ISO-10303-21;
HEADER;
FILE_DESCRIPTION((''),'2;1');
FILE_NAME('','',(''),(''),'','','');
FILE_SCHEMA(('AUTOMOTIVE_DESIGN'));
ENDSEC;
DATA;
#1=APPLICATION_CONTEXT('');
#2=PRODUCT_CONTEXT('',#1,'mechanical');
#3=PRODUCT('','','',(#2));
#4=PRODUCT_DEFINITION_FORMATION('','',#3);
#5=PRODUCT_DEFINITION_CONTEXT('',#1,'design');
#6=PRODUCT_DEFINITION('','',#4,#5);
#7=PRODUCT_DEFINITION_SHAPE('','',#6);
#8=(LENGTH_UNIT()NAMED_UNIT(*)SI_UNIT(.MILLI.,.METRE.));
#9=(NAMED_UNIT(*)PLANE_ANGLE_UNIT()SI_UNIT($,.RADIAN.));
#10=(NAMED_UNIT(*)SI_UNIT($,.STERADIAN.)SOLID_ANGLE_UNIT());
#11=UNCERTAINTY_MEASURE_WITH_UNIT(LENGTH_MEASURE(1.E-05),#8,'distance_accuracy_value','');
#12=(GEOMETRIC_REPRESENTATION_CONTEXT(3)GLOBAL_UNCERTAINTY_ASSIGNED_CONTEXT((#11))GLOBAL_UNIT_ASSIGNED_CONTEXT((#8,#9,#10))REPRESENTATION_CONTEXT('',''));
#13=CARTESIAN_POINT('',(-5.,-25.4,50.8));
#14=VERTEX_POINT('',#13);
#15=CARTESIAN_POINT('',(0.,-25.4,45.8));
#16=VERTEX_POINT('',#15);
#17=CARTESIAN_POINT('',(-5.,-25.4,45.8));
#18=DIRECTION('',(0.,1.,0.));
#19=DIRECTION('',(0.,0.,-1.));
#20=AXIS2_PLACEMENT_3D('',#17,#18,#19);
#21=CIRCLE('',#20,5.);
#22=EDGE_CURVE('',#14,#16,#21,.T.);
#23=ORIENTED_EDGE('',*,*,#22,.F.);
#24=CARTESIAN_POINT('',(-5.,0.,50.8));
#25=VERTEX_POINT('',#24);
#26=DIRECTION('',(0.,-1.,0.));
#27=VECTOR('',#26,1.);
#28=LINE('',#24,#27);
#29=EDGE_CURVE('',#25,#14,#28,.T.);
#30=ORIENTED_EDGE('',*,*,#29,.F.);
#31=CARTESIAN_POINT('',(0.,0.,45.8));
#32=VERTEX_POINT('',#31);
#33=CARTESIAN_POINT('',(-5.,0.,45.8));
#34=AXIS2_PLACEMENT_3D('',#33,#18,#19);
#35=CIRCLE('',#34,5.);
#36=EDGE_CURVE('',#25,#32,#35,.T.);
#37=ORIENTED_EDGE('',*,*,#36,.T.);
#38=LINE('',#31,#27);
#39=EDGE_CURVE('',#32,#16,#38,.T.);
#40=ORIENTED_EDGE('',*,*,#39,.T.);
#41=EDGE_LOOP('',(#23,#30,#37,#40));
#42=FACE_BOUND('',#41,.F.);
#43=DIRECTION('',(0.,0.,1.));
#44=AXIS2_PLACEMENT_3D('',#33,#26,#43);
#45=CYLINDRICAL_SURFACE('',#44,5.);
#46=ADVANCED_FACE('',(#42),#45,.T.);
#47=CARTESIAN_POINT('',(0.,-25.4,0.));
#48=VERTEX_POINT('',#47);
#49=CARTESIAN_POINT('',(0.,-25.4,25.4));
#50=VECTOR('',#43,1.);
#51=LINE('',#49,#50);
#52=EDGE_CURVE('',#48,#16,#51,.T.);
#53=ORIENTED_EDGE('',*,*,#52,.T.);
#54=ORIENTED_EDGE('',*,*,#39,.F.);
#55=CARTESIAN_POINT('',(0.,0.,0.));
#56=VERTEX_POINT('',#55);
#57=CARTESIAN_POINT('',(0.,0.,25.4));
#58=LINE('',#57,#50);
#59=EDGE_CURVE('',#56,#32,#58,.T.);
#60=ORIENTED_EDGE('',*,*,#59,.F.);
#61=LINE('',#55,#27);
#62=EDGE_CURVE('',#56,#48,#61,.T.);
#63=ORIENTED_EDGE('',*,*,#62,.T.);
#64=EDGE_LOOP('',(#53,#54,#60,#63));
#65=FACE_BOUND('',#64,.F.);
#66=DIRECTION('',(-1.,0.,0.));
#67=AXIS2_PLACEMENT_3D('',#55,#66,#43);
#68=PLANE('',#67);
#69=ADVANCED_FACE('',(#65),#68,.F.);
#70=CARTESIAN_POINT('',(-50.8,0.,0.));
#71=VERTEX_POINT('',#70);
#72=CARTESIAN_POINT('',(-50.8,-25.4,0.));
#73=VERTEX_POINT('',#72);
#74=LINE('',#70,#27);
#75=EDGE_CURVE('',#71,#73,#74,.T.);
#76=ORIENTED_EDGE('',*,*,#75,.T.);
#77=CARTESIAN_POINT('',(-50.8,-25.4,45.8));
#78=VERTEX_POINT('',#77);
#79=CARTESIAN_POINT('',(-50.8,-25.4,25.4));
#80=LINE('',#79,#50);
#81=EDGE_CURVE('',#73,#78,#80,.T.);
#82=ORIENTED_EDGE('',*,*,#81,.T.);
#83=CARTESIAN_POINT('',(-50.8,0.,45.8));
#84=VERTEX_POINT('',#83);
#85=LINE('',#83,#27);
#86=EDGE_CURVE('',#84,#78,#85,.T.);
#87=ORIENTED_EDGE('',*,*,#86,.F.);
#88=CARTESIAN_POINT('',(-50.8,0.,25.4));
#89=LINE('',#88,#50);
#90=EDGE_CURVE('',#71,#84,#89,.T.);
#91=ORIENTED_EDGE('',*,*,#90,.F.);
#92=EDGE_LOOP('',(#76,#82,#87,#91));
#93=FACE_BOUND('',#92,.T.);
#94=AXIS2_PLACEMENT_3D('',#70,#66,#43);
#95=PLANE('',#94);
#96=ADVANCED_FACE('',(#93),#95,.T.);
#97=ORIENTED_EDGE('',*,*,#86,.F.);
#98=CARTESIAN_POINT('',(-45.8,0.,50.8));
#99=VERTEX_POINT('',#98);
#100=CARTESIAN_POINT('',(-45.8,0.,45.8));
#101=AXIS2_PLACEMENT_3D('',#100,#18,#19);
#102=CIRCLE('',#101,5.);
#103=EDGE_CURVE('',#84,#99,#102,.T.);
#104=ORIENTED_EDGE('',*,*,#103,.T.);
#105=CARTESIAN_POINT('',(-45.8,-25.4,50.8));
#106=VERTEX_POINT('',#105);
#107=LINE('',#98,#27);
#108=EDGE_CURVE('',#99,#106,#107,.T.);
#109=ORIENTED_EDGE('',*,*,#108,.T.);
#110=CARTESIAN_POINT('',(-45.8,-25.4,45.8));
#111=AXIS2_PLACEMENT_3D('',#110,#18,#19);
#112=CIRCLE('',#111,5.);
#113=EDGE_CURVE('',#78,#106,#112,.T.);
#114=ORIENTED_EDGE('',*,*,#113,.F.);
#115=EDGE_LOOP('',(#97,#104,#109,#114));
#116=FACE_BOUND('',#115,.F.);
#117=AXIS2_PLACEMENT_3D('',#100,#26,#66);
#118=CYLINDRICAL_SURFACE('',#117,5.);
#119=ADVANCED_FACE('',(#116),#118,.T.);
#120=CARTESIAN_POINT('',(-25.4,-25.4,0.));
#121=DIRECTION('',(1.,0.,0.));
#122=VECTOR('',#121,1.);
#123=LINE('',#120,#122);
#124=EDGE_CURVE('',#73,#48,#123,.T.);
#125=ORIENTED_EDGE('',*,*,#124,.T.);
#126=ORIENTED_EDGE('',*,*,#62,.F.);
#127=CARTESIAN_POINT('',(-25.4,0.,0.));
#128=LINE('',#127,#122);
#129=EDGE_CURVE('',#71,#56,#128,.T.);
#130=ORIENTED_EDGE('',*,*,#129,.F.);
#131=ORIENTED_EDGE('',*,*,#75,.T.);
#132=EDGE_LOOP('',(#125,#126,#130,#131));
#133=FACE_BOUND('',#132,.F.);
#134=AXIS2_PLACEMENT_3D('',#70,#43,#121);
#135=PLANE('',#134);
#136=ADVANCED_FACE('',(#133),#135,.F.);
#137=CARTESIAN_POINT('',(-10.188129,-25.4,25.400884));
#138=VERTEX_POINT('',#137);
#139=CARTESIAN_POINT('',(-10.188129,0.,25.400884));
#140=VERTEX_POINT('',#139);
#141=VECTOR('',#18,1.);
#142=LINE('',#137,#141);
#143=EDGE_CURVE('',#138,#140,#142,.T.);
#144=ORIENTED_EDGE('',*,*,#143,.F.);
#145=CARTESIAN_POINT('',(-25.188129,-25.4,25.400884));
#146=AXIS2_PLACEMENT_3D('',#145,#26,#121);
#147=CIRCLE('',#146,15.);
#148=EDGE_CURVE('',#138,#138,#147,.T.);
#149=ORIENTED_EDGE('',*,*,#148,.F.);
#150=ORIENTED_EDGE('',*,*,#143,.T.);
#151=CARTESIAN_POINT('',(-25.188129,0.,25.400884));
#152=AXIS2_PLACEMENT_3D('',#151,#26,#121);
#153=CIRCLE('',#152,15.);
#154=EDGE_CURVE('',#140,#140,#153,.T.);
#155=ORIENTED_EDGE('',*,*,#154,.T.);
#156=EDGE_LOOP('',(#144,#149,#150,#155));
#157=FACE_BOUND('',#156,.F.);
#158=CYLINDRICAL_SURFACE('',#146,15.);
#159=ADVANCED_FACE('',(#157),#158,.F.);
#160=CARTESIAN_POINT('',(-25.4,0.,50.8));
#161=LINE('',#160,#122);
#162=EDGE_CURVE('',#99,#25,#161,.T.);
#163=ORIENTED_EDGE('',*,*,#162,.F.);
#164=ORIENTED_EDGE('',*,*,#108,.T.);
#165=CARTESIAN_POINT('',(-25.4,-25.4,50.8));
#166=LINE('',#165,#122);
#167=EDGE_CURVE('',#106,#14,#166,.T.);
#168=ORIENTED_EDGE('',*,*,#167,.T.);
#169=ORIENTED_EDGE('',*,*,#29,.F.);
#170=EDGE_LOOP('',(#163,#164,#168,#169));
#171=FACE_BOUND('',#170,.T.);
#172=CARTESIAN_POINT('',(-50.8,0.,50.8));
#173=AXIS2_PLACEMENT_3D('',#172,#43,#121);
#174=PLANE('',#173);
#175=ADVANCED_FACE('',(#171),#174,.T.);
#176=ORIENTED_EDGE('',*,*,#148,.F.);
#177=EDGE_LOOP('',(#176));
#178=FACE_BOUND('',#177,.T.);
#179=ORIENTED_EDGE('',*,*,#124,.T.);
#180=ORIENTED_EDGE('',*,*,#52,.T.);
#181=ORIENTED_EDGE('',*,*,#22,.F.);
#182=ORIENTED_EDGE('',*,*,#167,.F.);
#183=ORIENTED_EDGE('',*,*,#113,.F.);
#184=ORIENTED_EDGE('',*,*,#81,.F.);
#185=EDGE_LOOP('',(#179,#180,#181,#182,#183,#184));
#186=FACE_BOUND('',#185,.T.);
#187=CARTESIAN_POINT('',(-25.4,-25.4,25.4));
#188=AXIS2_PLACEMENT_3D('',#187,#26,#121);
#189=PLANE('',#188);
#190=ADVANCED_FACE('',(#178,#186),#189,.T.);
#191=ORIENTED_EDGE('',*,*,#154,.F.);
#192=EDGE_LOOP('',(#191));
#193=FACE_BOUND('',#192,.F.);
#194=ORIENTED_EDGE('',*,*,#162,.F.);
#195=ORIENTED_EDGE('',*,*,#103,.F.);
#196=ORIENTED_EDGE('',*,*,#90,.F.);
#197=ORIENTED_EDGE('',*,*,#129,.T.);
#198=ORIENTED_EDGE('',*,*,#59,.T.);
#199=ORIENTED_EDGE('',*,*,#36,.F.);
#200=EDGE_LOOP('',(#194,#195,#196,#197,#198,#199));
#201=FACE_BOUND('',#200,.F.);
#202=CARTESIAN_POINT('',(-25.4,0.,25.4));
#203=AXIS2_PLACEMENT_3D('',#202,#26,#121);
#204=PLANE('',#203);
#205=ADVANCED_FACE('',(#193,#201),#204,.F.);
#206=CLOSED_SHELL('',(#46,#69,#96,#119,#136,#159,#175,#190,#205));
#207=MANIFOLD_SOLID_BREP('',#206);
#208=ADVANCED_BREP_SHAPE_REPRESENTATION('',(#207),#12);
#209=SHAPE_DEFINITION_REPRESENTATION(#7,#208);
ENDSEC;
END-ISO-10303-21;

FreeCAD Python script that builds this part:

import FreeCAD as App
import Part
import Sketcher
from FreeCAD import Vector


def edges_at(feature, points):
    """Names of the edges that pass closest to the given points."""
    edges = feature.Shape.Edges
    near = lambda p: min(range(len(edges)), key=lambda i: edges[i].distToShape(Part.Vertex(*p))[0])
    return sorted({f"Edge{near(p) + 1}" for p in points})

doc = App.newDocument("Part")
params = doc.addObject("Spreadsheet::Sheet", "Params")
for row, (alias, value) in enumerate([
    ("sketch1_width", "50.8 mm"),
    ("pad1_length", "25.4 mm"),
    ("fillet_radius", "5 mm"),
    ("fillet2_radius", "5 mm"),
    ("sketch2_diameter", "30 mm"),
], start=1):
    params.set(f"A{row}", alias)
    params.set(f"B{row}", "=" + value)
    params.setAlias(f"B{row}", alias)

body = doc.addObject("PartDesign::Body", "Body")

# Sketch on XZ plane
sketch1 = body.newObject("Sketcher::SketchObject", "Sketch")
sketch1.AttachmentSupport = (doc.getObject("XZ_Plane"), [""])
sketch1.MapMode = "FlatFace"
sketch1.addGeometry([
    Part.LineSegment(Vector(-50.8, 50.8, 0), Vector(-50.8, 0, 0)),
    Part.LineSegment(Vector(-50.8, 0, 0), Vector(0, 0, 0)),
    Part.LineSegment(Vector(0, 0, 0), Vector(0, 50.8, 0)),
    Part.LineSegment(Vector(0, 50.8, 0), Vector(-50.8, 50.8, 0)),
], False)
sketch1.addConstraint([
    Sketcher.Constraint("Coincident", 0, 2, 1, 1),
    Sketcher.Constraint("Coincident", 1, 2, 2, 1),
    Sketcher.Constraint("Coincident", 2, 2, 3, 1),
    Sketcher.Constraint("Coincident", 3, 2, 0, 1),
    Sketcher.Constraint("Vertical", 0),
    Sketcher.Constraint("Horizontal", 1),
    Sketcher.Constraint("Vertical", 2),
    Sketcher.Constraint("Horizontal", 3),
    Sketcher.Constraint("Coincident", 1, 2, -1, 1),
    Sketcher.Constraint("Equal", 3, 0),
    Sketcher.Constraint("DistanceX", 1, 1, 1, 2, 50.8),
])
sketch1.setExpression("Constraints[10]", "Params.sketch1_width")
pad1 = body.newObject("PartDesign::Pad", "Pad")
pad1.Profile = sketch1
pad1.setExpression("Length", "Params.pad1_length")
doc.recompute()

fillet = body.newObject("PartDesign::Fillet", "Fillet")
fillet.Base = (pad1, edges_at(pad1, [(-50.8, -12.7, 50.8)]))
fillet.setExpression("Radius", "Params.fillet_radius")
doc.recompute()

fillet2 = body.newObject("PartDesign::Fillet", "Fillet001")
fillet2.Base = (fillet, edges_at(fillet, [(0, -12.7, 50.8)]))
fillet2.setExpression("Radius", "Params.fillet2_radius")

# Sketch on XZ plane
sketch2 = body.newObject("Sketcher::SketchObject", "Sketch001")
sketch2.AttachmentSupport = (doc.getObject("XZ_Plane"), [""])
sketch2.MapMode = "FlatFace"
sketch2.AttachmentOffset = App.Placement(Vector(0, 0, 25.4), App.Rotation())
sketch2.addGeometry(Part.Circle(Vector(-25.188129, 25.400884, 0), Vector(0, 0, 1), 15), False)
sketch2.addConstraint([
    Sketcher.Constraint("Diameter", 0, 30.0),
    Sketcher.Constraint("DistanceX", 0, 3, -1, 1, 25.188129),
    Sketcher.Constraint("DistanceY", -1, 1, 0, 3, 25.400884),
])
sketch2.setExpression("Constraints[0]", "Params.sketch2_diameter")
pocket1 = body.newObject("PartDesign::Pocket", "Pocket")
pocket1.Profile = sketch2
pocket1.Type = "ThroughAll"

doc.recompute()
